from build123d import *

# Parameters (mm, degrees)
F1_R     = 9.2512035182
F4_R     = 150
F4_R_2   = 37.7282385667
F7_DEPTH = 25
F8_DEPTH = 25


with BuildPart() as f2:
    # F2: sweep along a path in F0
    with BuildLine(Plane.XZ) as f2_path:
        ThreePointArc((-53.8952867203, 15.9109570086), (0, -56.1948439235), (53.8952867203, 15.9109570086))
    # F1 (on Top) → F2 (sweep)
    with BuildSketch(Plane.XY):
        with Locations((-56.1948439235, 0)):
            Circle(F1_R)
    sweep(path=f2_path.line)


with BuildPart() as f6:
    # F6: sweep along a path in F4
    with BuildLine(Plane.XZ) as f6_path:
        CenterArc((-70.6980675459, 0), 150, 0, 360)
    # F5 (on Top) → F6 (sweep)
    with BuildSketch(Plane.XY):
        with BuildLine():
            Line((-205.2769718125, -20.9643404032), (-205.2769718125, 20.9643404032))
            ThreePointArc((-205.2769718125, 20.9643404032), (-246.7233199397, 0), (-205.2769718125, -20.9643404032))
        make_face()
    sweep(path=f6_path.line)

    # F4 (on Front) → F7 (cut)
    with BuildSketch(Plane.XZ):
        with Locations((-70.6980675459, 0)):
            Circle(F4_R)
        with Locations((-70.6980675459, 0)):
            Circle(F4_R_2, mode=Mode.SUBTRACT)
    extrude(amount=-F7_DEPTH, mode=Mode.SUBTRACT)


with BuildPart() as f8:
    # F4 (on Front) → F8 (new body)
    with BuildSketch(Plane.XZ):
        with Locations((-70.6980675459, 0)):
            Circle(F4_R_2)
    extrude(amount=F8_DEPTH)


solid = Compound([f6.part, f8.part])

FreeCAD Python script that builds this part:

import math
import FreeCAD as App
import Part
import Sketcher

doc = App.newDocument("Part")
body = doc.addObject("PartDesign::Body", "Body")

# Sketch on XY plane
sketch1 = doc.addObject("Sketcher::SketchObject", "Sketch")
body.addObject(sketch1)
sketch1.AttachmentSupport = (doc.XY_Plane, [""])
sketch1.MapMode = "FlatFace"
sketch1.addGeometry(Part.Circle(App.Vector(-56, 0, 0), App.Vector(0, 0, 1), 9), False)
sketch1.addConstraint(Sketcher.Constraint("PointOnObject", 0, 3, -1))
sketch1.addConstraint(Sketcher.Constraint("Diameter", 0, 18.502407))
sketch1.addConstraint(Sketcher.Constraint("DistanceX", 0, 3, -1, 1, 56.194844))

# Sketch on XZ plane
sketch2 = doc.addObject("Sketcher::SketchObject", "Sketch001")
body.addObject(sketch2)
sketch2.AttachmentSupport = (doc.XZ_Plane, [""])
sketch2.MapMode = "FlatFace"
sketch2.addGeometry(Part.ArcOfCircle(Part.Circle(App.Vector(0, 0, 0), App.Vector(0, 0, 1), 56), math.radians(164), math.radians(376)), False)
sketch2.addConstraint(Sketcher.Constraint("Coincident", 0, 3, -1, 1))
sketch2.addConstraint(Sketcher.Constraint("Radius", 0, 56.194844))
sketch2.addConstraint(Sketcher.Constraint("DistanceX", 0, 1, -1, 1, 53.895287))
sketch2.addConstraint(Sketcher.Constraint("DistanceX", -1, 1, 0, 2, 53.895287))
doc.recompute()

additivepipe = doc.addObject("PartDesign::AdditivePipe", "AdditivePipe")
body.addObject(additivepipe)
additivepipe.Profile = sketch1
additivepipe.Spine = (sketch2, ["Edge1"])
body2 = doc.addObject("PartDesign::Body", "Body001")

# Sketch on XY plane
sketch3 = doc.addObject("Sketcher::SketchObject", "Sketch002")
body2.addObject(sketch3)
sketch3.AttachmentSupport = (doc.getObject("XY_Plane001"), [""])
sketch3.MapMode = "FlatFace"
sketch3.addGeometry(Part.LineSegment(App.Vector(-205, -21, 0), App.Vector(-205, 21, 0)), False)
sketch3.addGeometry(Part.ArcOfCircle(Part.Circle(App.Vector(-221, 0, 0), App.Vector(0, 0, 1), 26), math.radians(54), math.radians(306)), False)
sketch3.addConstraint(Sketcher.Constraint("Coincident", 0, 1, 1, 2))
sketch3.addConstraint(Sketcher.Constraint("Coincident", 1, 1, 0, 2))
sketch3.addConstraint(Sketcher.Constraint("Vertical", 0))
sketch3.addConstraint(Sketcher.Constraint("PointOnObject", 1, 3, -1))
sketch3.addConstraint(Sketcher.Constraint("Radius", 1, 26.025252))
sketch3.addConstraint(Sketcher.Constraint("DistanceY", 0, 1, 0, 2, 41.928681))
sketch3.addConstraint(Sketcher.Constraint("DistanceX", 0, 1, -1, 1, 205.276972))

# Sketch on XZ plane
sketch4 = doc.addObject("Sketcher::SketchObject", "Sketch003")
body2.addObject(sketch4)
sketch4.AttachmentSupport = (doc.getObject("XZ_Plane001"), [""])
sketch4.MapMode = "FlatFace"
sketch4.addGeometry(Part.Circle(App.Vector(-71, 0, 0), App.Vector(0, 0, 1), 150), False)
sketch4.addConstraint(Sketcher.Constraint("PointOnObject", 0, 3, -1))
sketch4.addConstraint(Sketcher.Constraint("Diameter", 0, 300.0))
sketch4.addConstraint(Sketcher.Constraint("DistanceX", 0, 3, -1, 1, 70.698068))
doc.recompute()

additivepipe2 = doc.addObject("PartDesign::AdditivePipe", "AdditivePipe001")
body2.addObject(additivepipe2)
additivepipe2.Profile = sketch3
additivepipe2.Spine = (sketch4, ["Edge1"])

# Sketch on XZ plane
sketch5 = doc.addObject("Sketcher::SketchObject", "Sketch004")
body2.addObject(sketch5)
sketch5.AttachmentSupport = (doc.getObject("XZ_Plane001"), [""])
sketch5.MapMode = "FlatFace"
sketch5.addGeometry(Part.Circle(App.Vector(-71, 0, 0), App.Vector(0, 0, 1), 150), False)
sketch5.addGeometry(Part.Circle(App.Vector(-71, 0, 0), App.Vector(0, 0, 1), 38), False)
sketch5.addConstraint(Sketcher.Constraint("Coincident", 1, 3, 0, 3))
sketch5.addConstraint(Sketcher.Constraint("PointOnObject", 0, 3, -1))
sketch5.addConstraint(Sketcher.Constraint("Diameter", 0, 300.0))
sketch5.addConstraint(Sketcher.Constraint("Diameter", 1, 75.456477))
sketch5.addConstraint(Sketcher.Constraint("DistanceX", 0, 3, -1, 1, 70.698068))
pocket1 = doc.addObject("PartDesign::Pocket", "Pocket")
body2.addObject(pocket1)
pocket1.Profile = sketch5
pocket1.Length = 25
body3 = doc.addObject("PartDesign::Body", "Body002")

# Sketch on XZ plane
sketch6 = doc.addObject("Sketcher::SketchObject", "Sketch005")
body3.addObject(sketch6)
sketch6.AttachmentSupport = (doc.getObject("XZ_Plane002"), [""])
sketch6.MapMode = "FlatFace"
sketch6.addGeometry(Part.Circle(App.Vector(-71, 0, 0), App.Vector(0, 0, 1), 38), False)
sketch6.addConstraint(Sketcher.Constraint("PointOnObject", 0, 3, -1))
sketch6.addConstraint(Sketcher.Constraint("Diameter", 0, 75.456477))
sketch6.addConstraint(Sketcher.Constraint("DistanceX", 0, 3, -1, 1, 70.698068))
pad1 = doc.addObject("PartDesign::Pad", "Pad")
body3.addObject(pad1)
pad1.Profile = sketch6
pad1.Length = 25
body.Visibility = False

doc.recompute()
